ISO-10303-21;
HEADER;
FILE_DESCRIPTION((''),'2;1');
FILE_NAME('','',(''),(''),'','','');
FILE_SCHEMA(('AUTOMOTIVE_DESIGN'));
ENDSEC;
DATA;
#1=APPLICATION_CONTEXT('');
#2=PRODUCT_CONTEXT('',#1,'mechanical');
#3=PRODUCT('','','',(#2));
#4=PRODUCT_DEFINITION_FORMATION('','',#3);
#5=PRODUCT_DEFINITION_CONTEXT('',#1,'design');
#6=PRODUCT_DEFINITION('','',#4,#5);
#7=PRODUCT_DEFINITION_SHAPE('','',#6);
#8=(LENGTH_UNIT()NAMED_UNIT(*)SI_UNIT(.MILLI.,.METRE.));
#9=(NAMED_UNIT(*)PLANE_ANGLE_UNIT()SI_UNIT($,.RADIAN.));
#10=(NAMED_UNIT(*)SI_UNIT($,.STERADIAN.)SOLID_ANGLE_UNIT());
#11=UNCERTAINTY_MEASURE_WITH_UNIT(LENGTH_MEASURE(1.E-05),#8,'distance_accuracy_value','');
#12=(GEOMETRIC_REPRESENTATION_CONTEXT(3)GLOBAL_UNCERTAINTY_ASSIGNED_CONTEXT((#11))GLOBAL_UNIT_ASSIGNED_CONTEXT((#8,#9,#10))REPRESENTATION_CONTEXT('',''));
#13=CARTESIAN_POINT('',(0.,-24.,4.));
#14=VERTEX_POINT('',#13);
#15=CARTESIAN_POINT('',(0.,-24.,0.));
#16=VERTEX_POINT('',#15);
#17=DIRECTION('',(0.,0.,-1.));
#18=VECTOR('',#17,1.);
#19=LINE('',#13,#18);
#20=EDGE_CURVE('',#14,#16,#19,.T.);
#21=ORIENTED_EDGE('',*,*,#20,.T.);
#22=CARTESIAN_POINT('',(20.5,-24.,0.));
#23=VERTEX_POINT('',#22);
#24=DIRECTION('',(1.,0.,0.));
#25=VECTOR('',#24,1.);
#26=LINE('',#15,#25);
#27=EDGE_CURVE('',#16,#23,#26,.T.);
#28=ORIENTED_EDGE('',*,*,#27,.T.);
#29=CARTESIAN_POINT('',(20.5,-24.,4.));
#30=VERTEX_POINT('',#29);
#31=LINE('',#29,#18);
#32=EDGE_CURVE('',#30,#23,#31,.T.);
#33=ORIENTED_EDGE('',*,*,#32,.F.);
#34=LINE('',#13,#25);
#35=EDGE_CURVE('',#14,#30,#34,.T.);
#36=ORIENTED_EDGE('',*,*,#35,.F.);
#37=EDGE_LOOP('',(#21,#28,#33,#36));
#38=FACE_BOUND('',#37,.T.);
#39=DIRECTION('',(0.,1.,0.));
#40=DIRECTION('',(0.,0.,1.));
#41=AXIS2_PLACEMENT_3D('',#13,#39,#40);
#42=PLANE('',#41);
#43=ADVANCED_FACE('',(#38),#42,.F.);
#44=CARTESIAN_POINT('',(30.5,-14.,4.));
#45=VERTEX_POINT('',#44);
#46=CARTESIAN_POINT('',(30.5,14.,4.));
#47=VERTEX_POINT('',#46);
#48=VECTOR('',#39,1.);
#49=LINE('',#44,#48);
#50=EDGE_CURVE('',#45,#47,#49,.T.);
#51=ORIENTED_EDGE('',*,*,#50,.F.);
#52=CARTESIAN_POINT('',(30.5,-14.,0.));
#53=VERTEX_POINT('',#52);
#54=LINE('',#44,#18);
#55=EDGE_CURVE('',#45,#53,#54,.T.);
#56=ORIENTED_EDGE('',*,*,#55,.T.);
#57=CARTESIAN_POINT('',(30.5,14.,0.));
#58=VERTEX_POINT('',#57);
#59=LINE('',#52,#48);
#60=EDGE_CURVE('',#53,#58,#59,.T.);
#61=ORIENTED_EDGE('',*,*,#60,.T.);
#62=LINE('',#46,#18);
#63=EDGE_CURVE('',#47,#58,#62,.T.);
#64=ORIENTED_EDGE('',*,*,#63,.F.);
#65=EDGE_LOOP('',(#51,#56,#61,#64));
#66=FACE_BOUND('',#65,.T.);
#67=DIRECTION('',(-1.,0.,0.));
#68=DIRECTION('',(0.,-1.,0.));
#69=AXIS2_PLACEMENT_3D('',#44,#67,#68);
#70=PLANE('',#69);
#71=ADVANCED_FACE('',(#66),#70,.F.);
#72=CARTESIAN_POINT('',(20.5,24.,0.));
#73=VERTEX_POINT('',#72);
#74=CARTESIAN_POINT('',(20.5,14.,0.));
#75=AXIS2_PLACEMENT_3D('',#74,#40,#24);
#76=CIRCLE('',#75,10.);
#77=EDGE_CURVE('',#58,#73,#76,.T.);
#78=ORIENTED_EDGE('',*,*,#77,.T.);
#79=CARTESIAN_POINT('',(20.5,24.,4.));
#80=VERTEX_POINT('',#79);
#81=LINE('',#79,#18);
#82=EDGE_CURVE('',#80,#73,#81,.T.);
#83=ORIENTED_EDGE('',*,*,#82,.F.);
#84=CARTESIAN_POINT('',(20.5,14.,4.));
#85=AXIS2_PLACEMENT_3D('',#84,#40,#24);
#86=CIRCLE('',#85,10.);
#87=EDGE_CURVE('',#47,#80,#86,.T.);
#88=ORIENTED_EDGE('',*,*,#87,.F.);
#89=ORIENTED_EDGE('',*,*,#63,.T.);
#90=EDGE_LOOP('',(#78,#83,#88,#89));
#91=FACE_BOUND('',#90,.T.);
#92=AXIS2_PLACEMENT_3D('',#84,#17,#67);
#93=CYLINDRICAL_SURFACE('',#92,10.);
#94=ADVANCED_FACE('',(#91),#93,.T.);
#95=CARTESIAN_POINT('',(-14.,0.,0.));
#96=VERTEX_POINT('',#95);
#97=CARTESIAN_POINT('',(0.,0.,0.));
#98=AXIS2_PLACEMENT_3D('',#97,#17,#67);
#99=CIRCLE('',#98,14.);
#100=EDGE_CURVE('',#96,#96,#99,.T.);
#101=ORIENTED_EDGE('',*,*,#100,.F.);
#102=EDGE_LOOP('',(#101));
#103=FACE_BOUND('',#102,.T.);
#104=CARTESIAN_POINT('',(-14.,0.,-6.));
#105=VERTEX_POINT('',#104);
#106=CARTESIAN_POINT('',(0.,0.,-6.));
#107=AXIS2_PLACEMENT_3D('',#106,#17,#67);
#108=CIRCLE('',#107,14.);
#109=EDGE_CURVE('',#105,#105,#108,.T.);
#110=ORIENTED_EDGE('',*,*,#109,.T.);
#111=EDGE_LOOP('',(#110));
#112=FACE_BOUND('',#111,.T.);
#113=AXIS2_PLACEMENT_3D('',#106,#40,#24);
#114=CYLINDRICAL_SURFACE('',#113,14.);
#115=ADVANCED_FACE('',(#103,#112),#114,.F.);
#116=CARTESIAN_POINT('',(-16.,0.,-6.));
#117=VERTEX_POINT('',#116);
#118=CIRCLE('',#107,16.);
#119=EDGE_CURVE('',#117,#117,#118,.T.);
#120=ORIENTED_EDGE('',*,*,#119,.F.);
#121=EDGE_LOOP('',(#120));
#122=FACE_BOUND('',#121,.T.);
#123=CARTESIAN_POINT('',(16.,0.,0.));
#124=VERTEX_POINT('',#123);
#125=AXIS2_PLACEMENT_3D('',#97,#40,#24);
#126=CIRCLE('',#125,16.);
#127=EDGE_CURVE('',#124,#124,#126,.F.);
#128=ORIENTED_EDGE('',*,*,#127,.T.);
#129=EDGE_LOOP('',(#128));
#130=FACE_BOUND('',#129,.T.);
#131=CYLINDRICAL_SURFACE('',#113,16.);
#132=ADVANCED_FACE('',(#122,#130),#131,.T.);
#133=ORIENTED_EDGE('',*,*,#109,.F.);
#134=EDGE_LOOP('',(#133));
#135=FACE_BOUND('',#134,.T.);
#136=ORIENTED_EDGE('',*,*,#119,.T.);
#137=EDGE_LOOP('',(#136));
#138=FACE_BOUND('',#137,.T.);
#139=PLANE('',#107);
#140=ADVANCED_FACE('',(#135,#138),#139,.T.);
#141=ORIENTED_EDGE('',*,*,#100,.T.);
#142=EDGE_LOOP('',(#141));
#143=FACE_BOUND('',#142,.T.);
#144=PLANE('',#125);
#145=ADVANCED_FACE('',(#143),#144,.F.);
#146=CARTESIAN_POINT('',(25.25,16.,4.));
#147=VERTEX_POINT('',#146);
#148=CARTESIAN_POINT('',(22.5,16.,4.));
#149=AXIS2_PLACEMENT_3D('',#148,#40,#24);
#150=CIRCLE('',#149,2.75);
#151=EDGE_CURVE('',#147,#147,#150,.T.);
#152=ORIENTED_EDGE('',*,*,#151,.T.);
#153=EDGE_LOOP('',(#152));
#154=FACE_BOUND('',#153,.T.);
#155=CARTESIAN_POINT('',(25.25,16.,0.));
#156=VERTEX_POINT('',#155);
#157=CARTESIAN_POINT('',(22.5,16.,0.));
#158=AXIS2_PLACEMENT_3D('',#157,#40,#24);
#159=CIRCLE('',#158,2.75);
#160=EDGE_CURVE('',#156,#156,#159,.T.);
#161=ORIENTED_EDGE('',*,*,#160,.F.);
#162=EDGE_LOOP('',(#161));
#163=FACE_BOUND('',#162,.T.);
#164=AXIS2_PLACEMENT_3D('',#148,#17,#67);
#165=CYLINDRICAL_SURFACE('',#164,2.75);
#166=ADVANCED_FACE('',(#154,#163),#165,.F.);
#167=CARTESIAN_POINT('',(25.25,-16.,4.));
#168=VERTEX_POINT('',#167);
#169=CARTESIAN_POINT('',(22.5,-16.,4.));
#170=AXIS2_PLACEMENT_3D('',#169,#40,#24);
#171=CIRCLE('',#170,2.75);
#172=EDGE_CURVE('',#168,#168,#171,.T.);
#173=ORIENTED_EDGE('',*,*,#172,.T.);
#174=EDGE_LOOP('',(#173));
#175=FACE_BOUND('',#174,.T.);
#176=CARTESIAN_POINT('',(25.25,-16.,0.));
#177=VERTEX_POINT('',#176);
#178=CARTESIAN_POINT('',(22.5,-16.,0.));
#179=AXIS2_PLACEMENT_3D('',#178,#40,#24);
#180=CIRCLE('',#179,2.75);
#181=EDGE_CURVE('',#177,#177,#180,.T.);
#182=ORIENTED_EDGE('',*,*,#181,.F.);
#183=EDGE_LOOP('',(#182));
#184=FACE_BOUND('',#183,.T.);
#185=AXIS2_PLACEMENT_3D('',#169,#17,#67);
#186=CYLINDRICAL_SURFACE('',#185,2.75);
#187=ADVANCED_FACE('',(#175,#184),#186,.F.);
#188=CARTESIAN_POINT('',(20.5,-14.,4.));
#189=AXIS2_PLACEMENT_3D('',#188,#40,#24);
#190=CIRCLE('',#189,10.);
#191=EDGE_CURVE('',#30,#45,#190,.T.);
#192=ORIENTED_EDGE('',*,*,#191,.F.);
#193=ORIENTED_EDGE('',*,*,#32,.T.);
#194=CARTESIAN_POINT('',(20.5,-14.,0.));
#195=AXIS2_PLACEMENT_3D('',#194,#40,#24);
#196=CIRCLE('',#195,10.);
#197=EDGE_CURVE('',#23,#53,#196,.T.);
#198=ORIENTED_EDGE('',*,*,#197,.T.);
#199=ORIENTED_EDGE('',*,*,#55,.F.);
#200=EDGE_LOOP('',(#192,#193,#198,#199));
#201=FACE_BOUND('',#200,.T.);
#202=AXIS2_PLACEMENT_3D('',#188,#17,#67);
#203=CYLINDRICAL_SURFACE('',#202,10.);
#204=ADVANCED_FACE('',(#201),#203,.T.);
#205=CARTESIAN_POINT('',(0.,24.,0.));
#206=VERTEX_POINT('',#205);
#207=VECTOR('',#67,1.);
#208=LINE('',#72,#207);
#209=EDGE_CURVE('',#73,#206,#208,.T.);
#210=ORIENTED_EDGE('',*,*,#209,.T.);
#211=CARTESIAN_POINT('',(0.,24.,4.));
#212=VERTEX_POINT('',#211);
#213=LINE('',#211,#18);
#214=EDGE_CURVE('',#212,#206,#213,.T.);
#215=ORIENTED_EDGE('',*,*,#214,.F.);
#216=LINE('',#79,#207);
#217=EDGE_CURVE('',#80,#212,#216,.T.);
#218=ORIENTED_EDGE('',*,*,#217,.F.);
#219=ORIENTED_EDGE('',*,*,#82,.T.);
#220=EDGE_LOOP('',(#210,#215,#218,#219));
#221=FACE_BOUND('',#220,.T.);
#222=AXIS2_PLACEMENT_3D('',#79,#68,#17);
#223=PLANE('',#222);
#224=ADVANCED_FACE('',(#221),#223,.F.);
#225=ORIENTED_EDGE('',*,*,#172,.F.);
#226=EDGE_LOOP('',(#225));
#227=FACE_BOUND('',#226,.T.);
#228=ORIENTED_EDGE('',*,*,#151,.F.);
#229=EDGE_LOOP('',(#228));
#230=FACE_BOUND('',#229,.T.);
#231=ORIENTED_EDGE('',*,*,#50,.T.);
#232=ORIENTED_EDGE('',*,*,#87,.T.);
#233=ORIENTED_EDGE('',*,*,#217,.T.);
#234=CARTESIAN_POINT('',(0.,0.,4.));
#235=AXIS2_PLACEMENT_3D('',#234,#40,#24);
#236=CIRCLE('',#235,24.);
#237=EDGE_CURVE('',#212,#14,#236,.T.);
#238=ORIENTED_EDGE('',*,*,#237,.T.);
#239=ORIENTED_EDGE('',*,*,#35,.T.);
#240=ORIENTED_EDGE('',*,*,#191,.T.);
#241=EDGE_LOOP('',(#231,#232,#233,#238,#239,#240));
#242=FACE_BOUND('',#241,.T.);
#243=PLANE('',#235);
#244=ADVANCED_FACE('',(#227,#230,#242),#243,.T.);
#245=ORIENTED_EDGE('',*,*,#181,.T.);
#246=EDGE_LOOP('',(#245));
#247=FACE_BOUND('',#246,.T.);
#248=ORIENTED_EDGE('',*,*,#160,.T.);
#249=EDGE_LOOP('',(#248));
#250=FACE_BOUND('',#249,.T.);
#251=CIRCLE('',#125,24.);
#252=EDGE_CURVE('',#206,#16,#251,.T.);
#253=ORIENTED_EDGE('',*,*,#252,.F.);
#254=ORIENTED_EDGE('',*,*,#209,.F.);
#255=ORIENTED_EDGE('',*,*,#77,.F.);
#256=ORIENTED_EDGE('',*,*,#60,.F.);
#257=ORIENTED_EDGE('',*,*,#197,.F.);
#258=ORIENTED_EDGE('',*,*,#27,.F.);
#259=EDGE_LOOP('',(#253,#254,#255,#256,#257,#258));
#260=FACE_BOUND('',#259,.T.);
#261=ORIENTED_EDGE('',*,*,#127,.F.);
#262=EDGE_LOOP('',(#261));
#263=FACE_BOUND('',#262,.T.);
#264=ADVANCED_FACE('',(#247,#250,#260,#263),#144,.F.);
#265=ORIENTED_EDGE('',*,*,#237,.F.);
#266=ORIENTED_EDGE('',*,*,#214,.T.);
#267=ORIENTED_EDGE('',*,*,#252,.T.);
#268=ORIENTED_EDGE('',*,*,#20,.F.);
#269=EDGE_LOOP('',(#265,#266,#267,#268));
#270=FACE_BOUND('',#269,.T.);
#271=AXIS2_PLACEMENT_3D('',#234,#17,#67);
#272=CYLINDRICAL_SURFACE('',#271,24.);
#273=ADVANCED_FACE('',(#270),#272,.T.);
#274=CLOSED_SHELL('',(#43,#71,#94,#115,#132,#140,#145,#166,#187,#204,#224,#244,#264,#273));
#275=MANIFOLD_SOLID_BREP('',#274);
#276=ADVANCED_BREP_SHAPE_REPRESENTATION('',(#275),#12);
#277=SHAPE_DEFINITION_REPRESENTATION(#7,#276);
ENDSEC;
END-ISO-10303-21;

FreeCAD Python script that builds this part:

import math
import FreeCAD as App
import Part
import Sketcher
from FreeCAD import Vector
Q = App.Units.Quantity

doc = App.newDocument("Part")
params = doc.addObject("Spreadsheet::Sheet", "Params")
for row, (alias, value) in enumerate([
    ("sketch1_radius", "10 mm"),
    ("sketch1_radius2", "24 mm"),
    ("sketch1_diameter", "5.5 mm"),
    ("sketch1_width", "20.5 mm"),
    ("pad1_length", "4 mm"),
    ("sketch2_diameter", "32 mm"),
    ("sketch2_diameter2", "28 mm"),
    ("pad2_length", "6 mm"),
], start=1):
    params.set(f"A{row}", alias)
    params.set(f"B{row}", "=" + value)
    params.setAlias(f"B{row}", alias)

body = doc.addObject("PartDesign::Body", "Body")

# Sketch on XY plane
sketch1 = body.newObject("Sketcher::SketchObject", "Sketch")
sketch1.AttachmentSupport = (doc.getObject("XY_Plane"), [""])
sketch1.MapMode = "FlatFace"
sketch1.addGeometry([
    Part.LineSegment(Vector(0, -24, 0), Vector(20.5, -24, 0)),  # 0
    Part.ArcOfCircle(Part.Circle(Vector(20.5, -14, 0), Vector(0, 0, 1), 10), math.radians(-90), math.radians(0)),  # 1
    Part.LineSegment(Vector(30.5, -14, 0), Vector(30.5, 14, 0)),  # 2
    Part.ArcOfCircle(Part.Circle(Vector(20.5, 14, 0), Vector(0, 0, 1), 10), math.radians(0), math.radians(90)),  # 3
    Part.LineSegment(Vector(20.5, 24, 0), Vector(0, 24, 0)),  # 4
    Part.ArcOfCircle(Part.Circle(Vector(0, 0, 0), Vector(0, 0, 1), 24), math.radians(90), math.radians(270)),  # 5
    Part.Circle(Vector(22.5, -16, 0), Vector(0, 0, 1), 2.75),  # 6
    Part.Circle(Vector(22.5, 16, 0), Vector(0, 0, 1), 2.75),  # 7
], False)
sketch1.addConstraint([
    Sketcher.Constraint("Tangent", 0, 2, 1, 1),
    Sketcher.Constraint("Tangent", 1, 2, 2, 1),
    Sketcher.Constraint("Tangent", 2, 2, 3, 1),
    Sketcher.Constraint("Tangent", 3, 2, 4, 1),
    Sketcher.Constraint("Tangent", 4, 2, 5, 1),
    Sketcher.Constraint("Tangent", 5, 2, 0, 1),
    Sketcher.Constraint("Horizontal", 0),
    Sketcher.Constraint("Vertical", 2),
    Sketcher.Constraint("Horizontal", 4),
    Sketcher.Constraint("Coincident", 5, 3, -1, 1),
    Sketcher.Constraint("Equal", 1, 3),
    Sketcher.Constraint("Equal", 6, 7),
    Sketcher.Constraint("Symmetric", 6, 3, 7, 3, -1),
    Sketcher.Constraint("Radius", 1, Q("10 mm")),
    Sketcher.Constraint("Radius", 5, Q("24 mm")),
    Sketcher.Constraint("Diameter", 6, Q("5.5 mm")),
    Sketcher.Constraint("DistanceX", 0, 1, 0, 2, Q("20.5 mm")),
    Sketcher.Constraint("DistanceY", 6, 3, -1, 1, Q("16 mm")),
    Sketcher.Constraint("DistanceX", 1, 3, 6, 3, Q("2 mm")),
])
sketch1.setExpression("Constraints[13]", "Params.sketch1_radius")
sketch1.setExpression("Constraints[14]", "Params.sketch1_radius2")
sketch1.setExpression("Constraints[15]", "Params.sketch1_diameter")
sketch1.setExpression("Constraints[16]", "Params.sketch1_width")
pad1 = body.newObject("PartDesign::Pad", "Pad")
pad1.Profile = sketch1
pad1.setExpression("Length", "Params.pad1_length")

# Sketch on XY plane
sketch2 = body.newObject("Sketcher::SketchObject", "Sketch001")
sketch2.AttachmentSupport = (doc.getObject("XY_Plane"), [""])
sketch2.MapMode = "FlatFace"
sketch2.addGeometry([
    Part.Circle(Vector(0, 0, 0), Vector(0, 0, 1), 16),
    Part.Circle(Vector(0, 0, 0), Vector(0, 0, 1), 14),
], False)
sketch2.addConstraint([
    Sketcher.Constraint("Coincident", 0, 3, -1, 1),
    Sketcher.Constraint("Coincident", 1, 3, -1, 1),
    Sketcher.Constraint("Diameter", 0, Q("32 mm")),
    Sketcher.Constraint("Diameter", 1, Q("28 mm")),
])
sketch2.setExpression("Constraints[2]", "Params.sketch2_diameter")
sketch2.setExpression("Constraints[3]", "Params.sketch2_diameter2")
pad2 = body.newObject("PartDesign::Pad", "Pad001")
pad2.Profile = sketch2
pad2.setExpression("Length", "Params.pad2_length")
pad2.Reversed = True

doc.recompute()
